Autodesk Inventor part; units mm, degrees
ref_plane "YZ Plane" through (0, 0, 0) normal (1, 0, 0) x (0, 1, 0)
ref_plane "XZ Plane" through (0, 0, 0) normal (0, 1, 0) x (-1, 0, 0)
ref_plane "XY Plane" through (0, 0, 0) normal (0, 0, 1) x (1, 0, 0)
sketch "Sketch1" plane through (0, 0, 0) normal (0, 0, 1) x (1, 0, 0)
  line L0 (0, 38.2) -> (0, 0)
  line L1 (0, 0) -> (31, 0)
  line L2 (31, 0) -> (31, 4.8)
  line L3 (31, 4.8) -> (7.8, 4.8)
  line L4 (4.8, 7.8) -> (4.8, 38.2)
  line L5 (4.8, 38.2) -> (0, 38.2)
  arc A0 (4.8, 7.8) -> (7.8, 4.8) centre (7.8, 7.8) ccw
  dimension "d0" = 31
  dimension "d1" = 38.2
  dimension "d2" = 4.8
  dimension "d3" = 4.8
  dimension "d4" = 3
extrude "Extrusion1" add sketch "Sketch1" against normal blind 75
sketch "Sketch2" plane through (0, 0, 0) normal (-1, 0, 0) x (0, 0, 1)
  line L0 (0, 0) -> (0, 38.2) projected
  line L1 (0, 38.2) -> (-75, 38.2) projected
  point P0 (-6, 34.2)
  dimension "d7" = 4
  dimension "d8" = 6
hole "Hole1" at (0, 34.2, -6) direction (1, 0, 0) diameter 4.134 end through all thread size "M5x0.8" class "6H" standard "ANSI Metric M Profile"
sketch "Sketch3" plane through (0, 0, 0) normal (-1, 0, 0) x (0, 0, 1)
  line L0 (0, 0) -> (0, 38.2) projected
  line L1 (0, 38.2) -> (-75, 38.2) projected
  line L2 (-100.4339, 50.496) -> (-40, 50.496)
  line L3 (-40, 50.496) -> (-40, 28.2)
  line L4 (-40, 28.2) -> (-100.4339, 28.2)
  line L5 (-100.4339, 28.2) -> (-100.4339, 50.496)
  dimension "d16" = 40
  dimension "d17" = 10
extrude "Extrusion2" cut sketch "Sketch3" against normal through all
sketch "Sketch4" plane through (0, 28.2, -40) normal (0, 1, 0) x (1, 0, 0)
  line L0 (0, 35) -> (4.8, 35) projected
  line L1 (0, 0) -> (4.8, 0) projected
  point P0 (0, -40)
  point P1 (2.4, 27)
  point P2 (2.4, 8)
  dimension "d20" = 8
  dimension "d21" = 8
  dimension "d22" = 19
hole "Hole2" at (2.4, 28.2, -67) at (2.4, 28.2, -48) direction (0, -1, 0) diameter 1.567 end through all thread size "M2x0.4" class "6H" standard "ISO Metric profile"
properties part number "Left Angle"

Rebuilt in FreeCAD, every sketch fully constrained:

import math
import FreeCAD as App
import Part
import Sketcher

doc = App.newDocument("Part")
body = doc.addObject("PartDesign::Body", "Body")

sketch1 = body.newObject("Sketcher::SketchObject", "Sketch")
sketch1.AttachmentSupport = (doc.getObject("XY_Plane"), [""])
sketch1.MapMode = "FlatFace"
sketch1.addGeometry(Part.LineSegment(App.Vector(4.8, 38.2, 0), App.Vector(0, 38.2, 0)), False)
sketch1.addGeometry(Part.LineSegment(App.Vector(0, 38.2, 0), App.Vector(0, 0, 0)), False)
sketch1.addGeometry(Part.LineSegment(App.Vector(0, 0, 0), App.Vector(31, 0, 0)), False)
sketch1.addGeometry(Part.LineSegment(App.Vector(31, 0, 0), App.Vector(31, 4.8, 0)), False)
sketch1.addGeometry(Part.LineSegment(App.Vector(31, 4.8, 0), App.Vector(7.8, 4.8, 0)), False)
sketch1.addGeometry(Part.ArcOfCircle(Part.Circle(App.Vector(7.8, 7.8, 0), App.Vector(0, 0, 1), 3), math.radians(180), math.radians(270)), False)
sketch1.addGeometry(Part.LineSegment(App.Vector(4.8, 7.8, 0), App.Vector(4.8, 38.2, 0)), False)
sketch1.addConstraint(Sketcher.Constraint("Coincident", 0, 2, 1, 1))
sketch1.addConstraint(Sketcher.Constraint("Coincident", 1, 2, 2, 1))
sketch1.addConstraint(Sketcher.Constraint("Coincident", 2, 2, 3, 1))
sketch1.addConstraint(Sketcher.Constraint("Coincident", 3, 2, 4, 1))
sketch1.addConstraint(Sketcher.Constraint("Tangent", 4, 2, 5, 2))
sketch1.addConstraint(Sketcher.Constraint("Tangent", 5, 1, 6, 1))
sketch1.addConstraint(Sketcher.Constraint("Coincident", 6, 2, 0, 1))
sketch1.addConstraint(Sketcher.Constraint("Horizontal", 0))
sketch1.addConstraint(Sketcher.Constraint("Vertical", 1))
sketch1.addConstraint(Sketcher.Constraint("Horizontal", 2))
sketch1.addConstraint(Sketcher.Constraint("Vertical", 3))
sketch1.addConstraint(Sketcher.Constraint("Horizontal", 4))
sketch1.addConstraint(Sketcher.Constraint("Vertical", 6))
sketch1.addConstraint(Sketcher.Constraint("Coincident", 1, 2, -1, 1))
sketch1.addConstraint(Sketcher.Constraint("Equal", 0, 3))
sketch1.addConstraint(Sketcher.Constraint("Radius", 5, 3.0))
sketch1.addConstraint(Sketcher.Constraint("DistanceX", 2, 1, 2, 2, 31.0))
sketch1.addConstraint(Sketcher.Constraint("DistanceX", 0, 2, 0, 1, 4.8))
sketch1.addConstraint(Sketcher.Constraint("DistanceY", 1, 2, 1, 1, 38.2))
pad1 = body.newObject("PartDesign::Pad", "Pad")
pad1.Profile = sketch1
pad1.Length = 75
pad1.Reversed = True

sketch2 = body.newObject("Sketcher::SketchObject", "Sketch001")
sketch2.AttachmentSupport = (doc.getObject("YZ_Plane"), [""])
sketch2.MapMode = "FlatFace"
sketch2.addGeometry(Part.Circle(App.Vector(34.2, -6, 0), App.Vector(0, 0, 1), 2.067), False)
sketch2.addConstraint(Sketcher.Constraint("Diameter", 0, 4.134))
sketch2.addConstraint(Sketcher.Constraint("DistanceY", 0, 3, -1, 1, 6.0))
sketch2.addConstraint(Sketcher.Constraint("DistanceX", -1, 1, 0, 3, 34.2))
doc.recompute()
hole = body.newObject("PartDesign::Hole", "Hole")
hole.Profile = sketch2
hole.ThreadType = "None"
hole.Diameter = 4.134
hole.DepthType = "ThroughAll"
hole.Reversed = True

sketch3 = body.newObject("Sketcher::SketchObject", "Sketch002")
sketch3.AttachmentSupport = (doc.getObject("YZ_Plane"), [""])
sketch3.MapMode = "FlatFace"
sketch3.addGeometry(Part.LineSegment(App.Vector(50.496, -40, 0), App.Vector(50.496, -100.4339, 0)), False)
sketch3.addGeometry(Part.LineSegment(App.Vector(50.496, -100.4339, 0), App.Vector(28.2, -100.4339, 0)), False)
sketch3.addGeometry(Part.LineSegment(App.Vector(28.2, -100.4339, 0), App.Vector(28.2, -40, 0)), False)
sketch3.addGeometry(Part.LineSegment(App.Vector(28.2, -40, 0), App.Vector(50.496, -40, 0)), False)
sketch3.addConstraint(Sketcher.Constraint("Coincident", 0, 2, 1, 1))
sketch3.addConstraint(Sketcher.Constraint("Coincident", 1, 2, 2, 1))
sketch3.addConstraint(Sketcher.Constraint("Coincident", 2, 2, 3, 1))
sketch3.addConstraint(Sketcher.Constraint("Coincident", 3, 2, 0, 1))
sketch3.addConstraint(Sketcher.Constraint("Vertical", 0))
sketch3.addConstraint(Sketcher.Constraint("Horizontal", 1))
sketch3.addConstraint(Sketcher.Constraint("Vertical", 2))
sketch3.addConstraint(Sketcher.Constraint("Horizontal", 3))
sketch3.addConstraint(Sketcher.Constraint("DistanceY", 2, 2, -1, 1, 40.0))
sketch3.addConstraint(Sketcher.Constraint("DistanceX", -1, 1, 1, 2, 28.2))
sketch3.addConstraint(Sketcher.Constraint("DistanceX", 1, 2, 1, 1, 22.296))
sketch3.addConstraint(Sketcher.Constraint("DistanceY", 0, 2, 0, 1, 60.434))
pocket1 = body.newObject("PartDesign::Pocket", "Pocket")
pocket1.Profile = sketch3
pocket1.Type = "ThroughAll"
pocket1.Reversed = True

sketch4 = body.newObject("Sketcher::SketchObject", "Sketch003")
sketch4.AttachmentSupport = (doc.getObject("XZ_Plane"), [""])
sketch4.MapMode = "FlatFace"
sketch4.AttachmentOffset = App.Placement(App.Vector(0, 0, -28.2), App.Rotation())
sketch4.addGeometry(Part.Circle(App.Vector(2.4, -67, 0), App.Vector(0, 0, 1), 0.7835), False)
sketch4.addGeometry(Part.Circle(App.Vector(2.4, -48, 0), App.Vector(0, 0, 1), 0.7835), False)
sketch4.addConstraint(Sketcher.Constraint("Equal", 0, 1))
sketch4.addConstraint(Sketcher.Constraint("Vertical", 0, 3, 1, 3))
sketch4.addConstraint(Sketcher.Constraint("Diameter", 0, 1.567))
sketch4.addConstraint(Sketcher.Constraint("DistanceY", 0, 3, -1, 1, 67.0))
sketch4.addConstraint(Sketcher.Constraint("DistanceY", 1, 3, -1, 1, 48.0))
sketch4.addConstraint(Sketcher.Constraint("DistanceX", -1, 1, 0, 3, 2.4))
doc.recompute()
hole2 = body.newObject("PartDesign::Hole", "Hole001")
hole2.Profile = sketch4
hole2.ThreadType = "None"
hole2.Diameter = 1.567
hole2.DepthType = "ThroughAll"
hole2.Reversed = True

doc.recompute()
